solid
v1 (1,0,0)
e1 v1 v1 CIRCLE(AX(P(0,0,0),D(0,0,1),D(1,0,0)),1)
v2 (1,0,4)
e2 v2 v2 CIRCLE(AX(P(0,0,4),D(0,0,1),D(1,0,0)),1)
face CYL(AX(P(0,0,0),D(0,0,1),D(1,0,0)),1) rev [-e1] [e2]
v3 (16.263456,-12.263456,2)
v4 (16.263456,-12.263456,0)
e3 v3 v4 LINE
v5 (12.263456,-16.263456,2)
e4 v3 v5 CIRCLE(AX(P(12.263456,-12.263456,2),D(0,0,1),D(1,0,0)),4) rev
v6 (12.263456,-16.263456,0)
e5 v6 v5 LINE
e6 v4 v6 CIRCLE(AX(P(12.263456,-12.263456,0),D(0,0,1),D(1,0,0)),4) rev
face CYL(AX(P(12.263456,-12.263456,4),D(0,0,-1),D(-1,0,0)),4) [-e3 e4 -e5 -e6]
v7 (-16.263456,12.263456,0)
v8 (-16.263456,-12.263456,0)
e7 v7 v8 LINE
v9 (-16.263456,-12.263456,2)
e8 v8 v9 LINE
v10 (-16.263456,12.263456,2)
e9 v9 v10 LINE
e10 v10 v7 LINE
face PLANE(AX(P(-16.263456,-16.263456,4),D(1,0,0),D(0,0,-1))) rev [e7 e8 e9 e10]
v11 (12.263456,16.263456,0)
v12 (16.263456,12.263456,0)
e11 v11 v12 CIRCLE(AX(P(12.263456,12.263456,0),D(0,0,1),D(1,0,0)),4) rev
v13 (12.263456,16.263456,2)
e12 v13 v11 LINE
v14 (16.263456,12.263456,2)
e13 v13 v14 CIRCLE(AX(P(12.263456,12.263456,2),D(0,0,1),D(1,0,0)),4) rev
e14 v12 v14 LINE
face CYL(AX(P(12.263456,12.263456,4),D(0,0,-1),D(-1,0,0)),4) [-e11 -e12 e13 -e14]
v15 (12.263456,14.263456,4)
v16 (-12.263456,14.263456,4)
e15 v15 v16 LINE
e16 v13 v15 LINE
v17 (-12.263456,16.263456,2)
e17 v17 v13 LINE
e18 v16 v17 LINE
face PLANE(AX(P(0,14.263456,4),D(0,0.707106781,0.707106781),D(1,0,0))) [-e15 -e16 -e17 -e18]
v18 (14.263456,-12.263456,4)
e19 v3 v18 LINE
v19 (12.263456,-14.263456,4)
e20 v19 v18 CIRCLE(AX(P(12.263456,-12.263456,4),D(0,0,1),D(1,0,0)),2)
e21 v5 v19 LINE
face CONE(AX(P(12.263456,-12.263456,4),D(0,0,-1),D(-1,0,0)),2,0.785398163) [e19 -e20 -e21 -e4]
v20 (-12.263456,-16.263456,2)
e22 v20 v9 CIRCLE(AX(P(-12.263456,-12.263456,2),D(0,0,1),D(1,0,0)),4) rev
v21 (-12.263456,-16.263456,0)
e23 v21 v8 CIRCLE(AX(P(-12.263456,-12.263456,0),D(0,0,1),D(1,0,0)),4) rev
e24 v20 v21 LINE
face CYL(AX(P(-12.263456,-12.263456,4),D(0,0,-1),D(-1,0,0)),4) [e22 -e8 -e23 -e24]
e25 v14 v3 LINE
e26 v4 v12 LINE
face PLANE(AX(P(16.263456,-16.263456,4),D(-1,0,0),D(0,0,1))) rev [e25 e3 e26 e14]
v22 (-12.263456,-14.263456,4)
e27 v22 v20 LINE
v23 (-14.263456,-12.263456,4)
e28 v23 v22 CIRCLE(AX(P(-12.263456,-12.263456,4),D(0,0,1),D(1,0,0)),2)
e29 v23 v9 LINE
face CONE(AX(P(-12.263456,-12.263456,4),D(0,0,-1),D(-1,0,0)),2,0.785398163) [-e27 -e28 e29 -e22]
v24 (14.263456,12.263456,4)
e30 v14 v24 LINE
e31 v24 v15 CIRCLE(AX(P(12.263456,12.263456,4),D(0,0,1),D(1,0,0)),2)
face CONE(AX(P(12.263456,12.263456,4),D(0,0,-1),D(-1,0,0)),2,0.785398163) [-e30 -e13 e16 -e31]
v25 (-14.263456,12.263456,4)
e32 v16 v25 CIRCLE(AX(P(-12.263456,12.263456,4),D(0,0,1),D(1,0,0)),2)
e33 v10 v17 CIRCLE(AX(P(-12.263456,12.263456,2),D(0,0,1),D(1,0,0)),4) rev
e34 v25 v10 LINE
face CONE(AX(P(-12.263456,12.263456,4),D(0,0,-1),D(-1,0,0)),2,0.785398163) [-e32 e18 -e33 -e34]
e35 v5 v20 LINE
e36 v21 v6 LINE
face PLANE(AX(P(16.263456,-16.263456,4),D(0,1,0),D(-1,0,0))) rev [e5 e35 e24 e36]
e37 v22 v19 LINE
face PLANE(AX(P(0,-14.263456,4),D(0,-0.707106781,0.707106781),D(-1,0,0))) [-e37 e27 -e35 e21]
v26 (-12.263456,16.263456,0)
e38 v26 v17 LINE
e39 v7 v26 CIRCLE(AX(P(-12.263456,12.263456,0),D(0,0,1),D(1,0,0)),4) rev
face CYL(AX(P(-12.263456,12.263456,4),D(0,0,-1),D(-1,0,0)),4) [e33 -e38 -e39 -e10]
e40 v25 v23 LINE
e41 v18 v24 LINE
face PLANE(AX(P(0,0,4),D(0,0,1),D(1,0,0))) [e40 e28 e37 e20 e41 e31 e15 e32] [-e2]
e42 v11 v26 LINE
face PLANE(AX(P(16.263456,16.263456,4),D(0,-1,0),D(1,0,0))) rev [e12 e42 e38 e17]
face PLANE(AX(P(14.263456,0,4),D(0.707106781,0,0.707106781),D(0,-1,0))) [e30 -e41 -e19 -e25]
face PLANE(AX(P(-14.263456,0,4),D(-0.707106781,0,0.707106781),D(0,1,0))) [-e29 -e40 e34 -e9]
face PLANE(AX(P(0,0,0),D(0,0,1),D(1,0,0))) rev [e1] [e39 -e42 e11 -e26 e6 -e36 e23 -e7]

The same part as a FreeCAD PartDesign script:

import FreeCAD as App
import Part
import Sketcher

V = App.Vector
Q = App.Units.Quantity


def edges_at(feature, points):
    """Names of the edges that pass closest to the given points."""
    edges = feature.Shape.Edges
    near = lambda p: min(range(len(edges)), key=lambda i: edges[i].distToShape(Part.Vertex(*p))[0])
    return sorted({f"Edge{near(p) + 1}" for p in points})


def add_polygon(sketch, points):
    """Adds a closed chain of lines whose ends are joined by coincident constraints."""
    first, n = sketch.GeometryCount, len(points)
    for a, b in zip(points, points[1:] + points[:1]):
        sketch.addGeometry(Part.LineSegment(App.Vector(*a, 0), App.Vector(*b, 0)), False)
    for i in range(n):
        sketch.addConstraint(Sketcher.Constraint("Coincident", first + i, 2, first + (i + 1) % n, 1))

doc = App.newDocument("Part")
body = doc.addObject("PartDesign::Body", "Body")

# Sketch on XY plane
sketch1 = doc.addObject("Sketcher::SketchObject", "Sketch")
body.addObject(sketch1)
sketch1.AttachmentSupport = (doc.XY_Plane, [""])
sketch1.MapMode = "FlatFace"
add_polygon(sketch1, [(-16, 16), (-16, -16), (16, -16), (16, 16)])  # lines 0-3
sketch1.addConstraint([
    Sketcher.Constraint("Vertical", 0),
    Sketcher.Constraint("Horizontal", 1),
    Sketcher.Constraint("Vertical", 2),
    Sketcher.Constraint("Horizontal", 3),
    Sketcher.Constraint("Symmetric", 0, 2, 2, 2, -1, 1),
    Sketcher.Constraint("Equal", 3, 0),
    Sketcher.Constraint("DistanceX", 1, 1, 1, 2, Q("32.526912 mm")),
])
pad1 = doc.addObject("PartDesign::Pad", "Pad")
body.addObject(pad1)
pad1.Profile = sketch1
pad1.Length = 4
doc.recompute()

fillet = doc.addObject("PartDesign::Fillet", "Fillet")
body.addObject(fillet)
fillet.Base = (pad1, edges_at(pad1, [
    (-16.263, 16.263, 2),
    (16.263, 16.263, 2),
    (16.263, -16.263, 2),
    (-16.263, -16.263, 2),
]))
fillet.Radius = 4
doc.recompute()

chamfer = doc.addObject("PartDesign::Chamfer", "Chamfer")
body.addObject(chamfer)
chamfer.Base = (fillet, edges_at(fillet, [
    (0, -16.263, 4),
    (-16.263, 0, 4),
    (16.263, 0, 4),
    (0, 16.263, 4),
    (-15.092, 15.092, 4),
    (15.092, 15.092, 4),
    (15.092, -15.092, 4),
    (-15.092, -15.092, 4),
]))
chamfer.Size = 2

# Sketch on XY plane
sketch2 = doc.addObject("Sketcher::SketchObject", "Sketch001")
body.addObject(sketch2)
sketch2.AttachmentSupport = (doc.XY_Plane, [""])
sketch2.MapMode = "FlatFace"
sketch2.AttachmentOffset = App.Placement(V(0, 0, 4), App.Rotation())
sketch2.addGeometry(Part.Circle(V(0, 0, 0), V(0, 0, 1), 1), False)
sketch2.addConstraint([
    Sketcher.Constraint("Coincident", 0, 3, -1, 1),
    Sketcher.Constraint("Diameter", 0, Q("2 mm")),
])
pocket1 = doc.addObject("PartDesign::Pocket", "Pocket")
body.addObject(pocket1)
pocket1.Profile = sketch2
pocket1.Type = "ThroughAll"

doc.recompute()
